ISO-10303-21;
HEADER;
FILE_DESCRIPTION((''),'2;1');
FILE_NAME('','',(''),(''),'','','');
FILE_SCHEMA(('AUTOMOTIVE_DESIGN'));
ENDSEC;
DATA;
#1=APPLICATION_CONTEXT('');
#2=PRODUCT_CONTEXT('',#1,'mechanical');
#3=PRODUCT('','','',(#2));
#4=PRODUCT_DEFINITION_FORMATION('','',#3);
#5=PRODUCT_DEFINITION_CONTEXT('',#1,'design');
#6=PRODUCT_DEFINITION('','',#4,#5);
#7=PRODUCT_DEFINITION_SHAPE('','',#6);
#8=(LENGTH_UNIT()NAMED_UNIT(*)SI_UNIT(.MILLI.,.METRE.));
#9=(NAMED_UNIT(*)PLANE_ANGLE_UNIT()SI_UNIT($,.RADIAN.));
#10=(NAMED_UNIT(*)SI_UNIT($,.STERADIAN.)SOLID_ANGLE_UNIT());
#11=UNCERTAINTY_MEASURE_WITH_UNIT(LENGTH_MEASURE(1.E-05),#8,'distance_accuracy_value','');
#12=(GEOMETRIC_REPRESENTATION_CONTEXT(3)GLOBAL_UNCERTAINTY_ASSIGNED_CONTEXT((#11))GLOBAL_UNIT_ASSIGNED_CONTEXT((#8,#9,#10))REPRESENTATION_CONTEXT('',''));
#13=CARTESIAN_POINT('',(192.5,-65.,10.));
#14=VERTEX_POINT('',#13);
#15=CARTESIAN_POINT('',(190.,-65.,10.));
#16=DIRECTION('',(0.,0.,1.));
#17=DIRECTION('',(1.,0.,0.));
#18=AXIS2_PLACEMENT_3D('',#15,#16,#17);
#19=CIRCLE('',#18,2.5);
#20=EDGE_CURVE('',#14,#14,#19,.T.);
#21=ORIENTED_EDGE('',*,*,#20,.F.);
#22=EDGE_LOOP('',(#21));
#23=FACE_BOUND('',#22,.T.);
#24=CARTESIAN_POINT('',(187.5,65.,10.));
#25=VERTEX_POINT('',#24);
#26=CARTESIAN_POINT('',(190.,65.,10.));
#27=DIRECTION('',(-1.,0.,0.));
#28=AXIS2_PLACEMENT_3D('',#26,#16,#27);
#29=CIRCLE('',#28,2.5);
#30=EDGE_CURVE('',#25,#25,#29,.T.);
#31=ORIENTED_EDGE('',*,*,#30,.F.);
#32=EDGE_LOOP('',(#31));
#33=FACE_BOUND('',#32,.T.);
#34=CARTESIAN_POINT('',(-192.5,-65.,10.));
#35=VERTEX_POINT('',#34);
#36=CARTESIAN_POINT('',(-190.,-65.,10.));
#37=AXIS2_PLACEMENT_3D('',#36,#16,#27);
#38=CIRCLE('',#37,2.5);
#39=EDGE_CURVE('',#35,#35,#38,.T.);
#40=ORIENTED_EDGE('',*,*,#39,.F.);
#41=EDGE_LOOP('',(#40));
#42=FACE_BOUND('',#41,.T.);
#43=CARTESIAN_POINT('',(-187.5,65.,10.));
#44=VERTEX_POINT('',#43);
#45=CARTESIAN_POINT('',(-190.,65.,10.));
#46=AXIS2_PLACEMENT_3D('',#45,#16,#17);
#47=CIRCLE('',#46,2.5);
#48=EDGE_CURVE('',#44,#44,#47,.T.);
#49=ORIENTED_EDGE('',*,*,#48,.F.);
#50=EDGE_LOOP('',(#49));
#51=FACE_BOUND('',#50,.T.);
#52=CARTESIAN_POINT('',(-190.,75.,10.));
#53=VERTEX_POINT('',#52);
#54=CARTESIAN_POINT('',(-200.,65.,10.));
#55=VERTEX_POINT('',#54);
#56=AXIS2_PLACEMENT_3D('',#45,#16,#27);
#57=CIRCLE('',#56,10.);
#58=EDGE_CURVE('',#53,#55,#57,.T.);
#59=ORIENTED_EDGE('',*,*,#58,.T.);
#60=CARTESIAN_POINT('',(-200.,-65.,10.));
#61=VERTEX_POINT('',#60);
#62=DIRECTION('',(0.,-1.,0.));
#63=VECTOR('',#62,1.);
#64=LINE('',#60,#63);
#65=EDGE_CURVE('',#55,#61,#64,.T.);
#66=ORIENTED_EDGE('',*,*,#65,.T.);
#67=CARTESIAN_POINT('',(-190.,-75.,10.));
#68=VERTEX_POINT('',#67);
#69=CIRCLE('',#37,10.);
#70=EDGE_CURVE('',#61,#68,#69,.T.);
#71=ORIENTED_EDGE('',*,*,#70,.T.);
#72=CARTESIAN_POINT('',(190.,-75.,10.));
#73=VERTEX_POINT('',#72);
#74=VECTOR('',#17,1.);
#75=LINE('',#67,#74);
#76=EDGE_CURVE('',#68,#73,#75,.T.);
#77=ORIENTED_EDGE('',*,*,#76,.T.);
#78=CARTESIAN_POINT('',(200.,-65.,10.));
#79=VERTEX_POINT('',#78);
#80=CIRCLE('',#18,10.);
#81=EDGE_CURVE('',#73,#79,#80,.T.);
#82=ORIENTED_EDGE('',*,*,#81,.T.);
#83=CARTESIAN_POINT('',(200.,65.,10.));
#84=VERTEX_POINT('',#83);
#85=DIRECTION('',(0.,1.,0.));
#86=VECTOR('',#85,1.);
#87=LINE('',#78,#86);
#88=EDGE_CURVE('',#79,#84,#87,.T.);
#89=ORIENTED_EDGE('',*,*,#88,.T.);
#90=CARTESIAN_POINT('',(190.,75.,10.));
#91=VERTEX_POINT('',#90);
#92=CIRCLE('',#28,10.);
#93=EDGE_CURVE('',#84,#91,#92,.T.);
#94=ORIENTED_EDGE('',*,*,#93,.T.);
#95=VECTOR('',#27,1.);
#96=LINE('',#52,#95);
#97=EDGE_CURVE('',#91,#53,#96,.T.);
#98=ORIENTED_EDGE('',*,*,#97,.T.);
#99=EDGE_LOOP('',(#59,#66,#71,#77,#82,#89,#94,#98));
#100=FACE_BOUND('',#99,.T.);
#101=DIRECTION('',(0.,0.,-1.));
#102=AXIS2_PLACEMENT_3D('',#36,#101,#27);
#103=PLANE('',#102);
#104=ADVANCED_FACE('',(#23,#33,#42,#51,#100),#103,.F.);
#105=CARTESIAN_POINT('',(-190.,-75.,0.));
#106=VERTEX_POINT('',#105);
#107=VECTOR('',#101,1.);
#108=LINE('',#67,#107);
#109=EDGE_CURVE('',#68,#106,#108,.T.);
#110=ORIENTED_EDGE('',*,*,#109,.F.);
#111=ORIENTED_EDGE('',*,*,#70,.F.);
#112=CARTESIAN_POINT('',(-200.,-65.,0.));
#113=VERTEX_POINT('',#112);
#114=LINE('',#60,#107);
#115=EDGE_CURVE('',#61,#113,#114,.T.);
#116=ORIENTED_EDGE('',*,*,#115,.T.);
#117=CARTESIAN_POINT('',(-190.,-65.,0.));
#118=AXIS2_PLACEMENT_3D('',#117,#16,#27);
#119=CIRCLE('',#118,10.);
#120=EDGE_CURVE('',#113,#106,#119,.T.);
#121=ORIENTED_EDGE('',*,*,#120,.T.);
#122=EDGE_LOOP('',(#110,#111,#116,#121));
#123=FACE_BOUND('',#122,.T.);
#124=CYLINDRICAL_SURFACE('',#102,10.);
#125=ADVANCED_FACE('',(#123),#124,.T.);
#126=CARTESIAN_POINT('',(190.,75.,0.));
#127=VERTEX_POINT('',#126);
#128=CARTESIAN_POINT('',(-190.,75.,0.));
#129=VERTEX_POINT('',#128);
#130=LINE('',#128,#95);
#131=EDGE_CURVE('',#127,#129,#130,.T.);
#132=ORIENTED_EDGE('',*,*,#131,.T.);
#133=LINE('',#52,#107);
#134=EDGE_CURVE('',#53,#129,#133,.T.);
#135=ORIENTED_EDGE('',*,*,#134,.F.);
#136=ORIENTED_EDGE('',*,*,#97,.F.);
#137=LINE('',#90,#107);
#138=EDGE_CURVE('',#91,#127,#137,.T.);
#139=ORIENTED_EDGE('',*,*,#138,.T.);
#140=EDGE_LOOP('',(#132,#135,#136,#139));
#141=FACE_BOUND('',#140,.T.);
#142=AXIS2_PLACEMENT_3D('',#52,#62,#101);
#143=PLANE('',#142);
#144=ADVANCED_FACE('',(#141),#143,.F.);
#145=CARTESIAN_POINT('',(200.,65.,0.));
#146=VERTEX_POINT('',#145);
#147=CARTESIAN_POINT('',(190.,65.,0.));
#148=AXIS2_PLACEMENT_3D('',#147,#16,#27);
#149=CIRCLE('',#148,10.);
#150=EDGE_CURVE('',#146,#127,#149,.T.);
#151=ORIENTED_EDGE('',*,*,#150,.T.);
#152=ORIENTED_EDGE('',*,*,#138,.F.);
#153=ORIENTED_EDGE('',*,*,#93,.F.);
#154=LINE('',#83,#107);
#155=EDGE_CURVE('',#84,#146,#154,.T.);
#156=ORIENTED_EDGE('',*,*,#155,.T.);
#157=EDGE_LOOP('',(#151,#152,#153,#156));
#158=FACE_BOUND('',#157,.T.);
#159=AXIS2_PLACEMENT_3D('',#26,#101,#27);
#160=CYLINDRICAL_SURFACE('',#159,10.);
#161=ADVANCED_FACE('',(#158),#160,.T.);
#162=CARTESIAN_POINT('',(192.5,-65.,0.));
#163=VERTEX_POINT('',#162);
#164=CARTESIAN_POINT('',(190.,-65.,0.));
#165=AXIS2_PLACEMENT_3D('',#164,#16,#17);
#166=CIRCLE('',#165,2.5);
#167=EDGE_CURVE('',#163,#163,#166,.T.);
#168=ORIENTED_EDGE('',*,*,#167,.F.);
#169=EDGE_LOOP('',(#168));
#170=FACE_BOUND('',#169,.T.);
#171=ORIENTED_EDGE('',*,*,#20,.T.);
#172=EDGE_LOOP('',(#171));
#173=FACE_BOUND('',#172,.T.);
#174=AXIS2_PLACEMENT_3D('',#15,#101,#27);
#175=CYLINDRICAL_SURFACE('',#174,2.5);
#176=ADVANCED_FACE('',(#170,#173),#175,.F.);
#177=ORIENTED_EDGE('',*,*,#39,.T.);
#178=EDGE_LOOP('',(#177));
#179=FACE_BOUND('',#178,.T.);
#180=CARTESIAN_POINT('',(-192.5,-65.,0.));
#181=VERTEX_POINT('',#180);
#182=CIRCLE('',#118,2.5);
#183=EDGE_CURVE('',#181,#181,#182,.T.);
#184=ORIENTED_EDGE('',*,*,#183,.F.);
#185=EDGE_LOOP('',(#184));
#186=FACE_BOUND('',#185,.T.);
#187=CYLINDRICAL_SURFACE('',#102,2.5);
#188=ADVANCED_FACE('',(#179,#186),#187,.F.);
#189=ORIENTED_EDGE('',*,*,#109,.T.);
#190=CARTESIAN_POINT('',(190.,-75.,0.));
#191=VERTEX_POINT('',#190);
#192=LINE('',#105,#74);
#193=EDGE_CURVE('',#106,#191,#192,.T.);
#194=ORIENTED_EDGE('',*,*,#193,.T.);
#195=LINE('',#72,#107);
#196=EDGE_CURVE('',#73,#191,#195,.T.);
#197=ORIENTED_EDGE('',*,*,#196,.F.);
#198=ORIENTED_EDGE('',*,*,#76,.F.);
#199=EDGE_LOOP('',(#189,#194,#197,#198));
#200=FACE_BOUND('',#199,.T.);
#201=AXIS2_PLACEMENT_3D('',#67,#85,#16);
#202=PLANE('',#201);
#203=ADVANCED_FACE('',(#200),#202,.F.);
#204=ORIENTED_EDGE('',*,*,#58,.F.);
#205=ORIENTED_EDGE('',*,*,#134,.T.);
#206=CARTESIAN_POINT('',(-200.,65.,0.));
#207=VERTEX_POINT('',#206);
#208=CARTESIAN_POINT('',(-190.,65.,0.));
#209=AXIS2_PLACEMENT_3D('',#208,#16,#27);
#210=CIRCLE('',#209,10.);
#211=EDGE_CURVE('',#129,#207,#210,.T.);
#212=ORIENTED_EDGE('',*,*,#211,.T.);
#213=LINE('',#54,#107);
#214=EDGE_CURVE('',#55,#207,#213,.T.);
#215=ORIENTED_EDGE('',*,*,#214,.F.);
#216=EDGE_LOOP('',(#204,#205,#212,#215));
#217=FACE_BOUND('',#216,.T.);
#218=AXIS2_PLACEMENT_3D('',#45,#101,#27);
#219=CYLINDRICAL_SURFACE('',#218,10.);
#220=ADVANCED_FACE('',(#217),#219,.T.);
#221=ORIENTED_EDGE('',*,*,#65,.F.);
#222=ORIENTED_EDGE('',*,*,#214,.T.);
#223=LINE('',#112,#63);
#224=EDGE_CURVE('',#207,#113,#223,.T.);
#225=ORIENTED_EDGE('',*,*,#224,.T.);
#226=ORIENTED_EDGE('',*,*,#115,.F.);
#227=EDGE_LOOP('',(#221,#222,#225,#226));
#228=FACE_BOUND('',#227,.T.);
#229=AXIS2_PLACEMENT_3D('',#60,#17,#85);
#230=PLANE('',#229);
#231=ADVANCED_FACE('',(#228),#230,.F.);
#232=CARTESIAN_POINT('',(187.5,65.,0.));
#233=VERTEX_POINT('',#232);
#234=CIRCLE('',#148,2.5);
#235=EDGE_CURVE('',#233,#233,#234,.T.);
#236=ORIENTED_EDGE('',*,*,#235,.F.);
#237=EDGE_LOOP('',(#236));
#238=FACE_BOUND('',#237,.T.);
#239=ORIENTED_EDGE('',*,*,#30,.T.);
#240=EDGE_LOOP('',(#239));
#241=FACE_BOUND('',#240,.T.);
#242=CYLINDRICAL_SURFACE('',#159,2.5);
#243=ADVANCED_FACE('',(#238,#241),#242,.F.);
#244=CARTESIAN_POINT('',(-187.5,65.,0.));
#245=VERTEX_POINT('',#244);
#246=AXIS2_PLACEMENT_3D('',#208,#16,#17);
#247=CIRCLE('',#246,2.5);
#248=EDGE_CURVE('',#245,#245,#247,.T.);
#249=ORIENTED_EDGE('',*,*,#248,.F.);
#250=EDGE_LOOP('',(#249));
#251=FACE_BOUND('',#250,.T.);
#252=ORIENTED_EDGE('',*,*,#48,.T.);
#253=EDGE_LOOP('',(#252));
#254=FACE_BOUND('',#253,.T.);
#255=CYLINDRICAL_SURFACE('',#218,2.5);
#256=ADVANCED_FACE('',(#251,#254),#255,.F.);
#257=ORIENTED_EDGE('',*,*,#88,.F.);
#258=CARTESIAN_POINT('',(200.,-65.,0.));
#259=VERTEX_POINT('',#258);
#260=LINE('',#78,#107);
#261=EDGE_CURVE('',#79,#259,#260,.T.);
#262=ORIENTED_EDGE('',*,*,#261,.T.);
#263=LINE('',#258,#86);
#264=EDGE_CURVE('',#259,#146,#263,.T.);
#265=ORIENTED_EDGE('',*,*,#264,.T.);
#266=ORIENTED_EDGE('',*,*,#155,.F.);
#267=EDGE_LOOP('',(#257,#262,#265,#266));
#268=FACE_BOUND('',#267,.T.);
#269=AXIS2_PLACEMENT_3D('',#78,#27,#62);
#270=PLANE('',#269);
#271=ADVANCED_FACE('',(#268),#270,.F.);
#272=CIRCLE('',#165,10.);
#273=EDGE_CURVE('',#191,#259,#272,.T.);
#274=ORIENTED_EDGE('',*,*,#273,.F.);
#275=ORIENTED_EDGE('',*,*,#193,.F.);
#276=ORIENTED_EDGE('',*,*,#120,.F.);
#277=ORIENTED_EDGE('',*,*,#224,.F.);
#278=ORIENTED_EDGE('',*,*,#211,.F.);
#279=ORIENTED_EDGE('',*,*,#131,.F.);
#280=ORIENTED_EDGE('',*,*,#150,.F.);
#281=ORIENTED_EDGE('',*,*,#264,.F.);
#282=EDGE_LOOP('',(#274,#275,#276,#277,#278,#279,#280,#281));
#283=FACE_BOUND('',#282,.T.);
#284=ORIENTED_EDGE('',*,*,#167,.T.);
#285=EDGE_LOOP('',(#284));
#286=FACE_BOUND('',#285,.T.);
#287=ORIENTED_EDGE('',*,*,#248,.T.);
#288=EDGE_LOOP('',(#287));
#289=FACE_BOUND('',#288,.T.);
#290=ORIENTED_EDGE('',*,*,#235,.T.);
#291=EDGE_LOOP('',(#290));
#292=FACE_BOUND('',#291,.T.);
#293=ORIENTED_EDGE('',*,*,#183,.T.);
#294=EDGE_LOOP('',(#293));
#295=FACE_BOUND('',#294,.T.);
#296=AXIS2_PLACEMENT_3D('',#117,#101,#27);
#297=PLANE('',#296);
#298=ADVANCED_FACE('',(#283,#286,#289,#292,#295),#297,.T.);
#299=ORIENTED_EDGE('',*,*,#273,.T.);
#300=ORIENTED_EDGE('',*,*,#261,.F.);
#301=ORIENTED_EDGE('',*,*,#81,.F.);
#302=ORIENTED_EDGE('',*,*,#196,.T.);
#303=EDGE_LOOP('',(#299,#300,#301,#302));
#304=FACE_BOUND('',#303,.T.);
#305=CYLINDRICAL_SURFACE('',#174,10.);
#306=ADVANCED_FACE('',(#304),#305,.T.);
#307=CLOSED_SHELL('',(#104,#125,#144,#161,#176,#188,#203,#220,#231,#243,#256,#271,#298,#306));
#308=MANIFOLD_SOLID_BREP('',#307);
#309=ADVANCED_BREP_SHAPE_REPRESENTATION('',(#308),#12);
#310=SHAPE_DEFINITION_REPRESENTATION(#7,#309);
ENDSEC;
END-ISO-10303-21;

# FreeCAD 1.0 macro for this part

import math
import FreeCAD as App
import Part
import Sketcher

V = App.Vector

doc = App.newDocument("Part")
body = doc.addObject("PartDesign::Body", "Body")

# Sketch on XY plane
sketch1 = body.newObject("Sketcher::SketchObject", "Sketch")
sketch1.AttachmentSupport = (doc.getObject("XY_Plane"), [""])
sketch1.MapMode = "FlatFace"
sketch1.addGeometry([
    Part.LineSegment(V(-190, -75, 0), V(190, -75, 0)),  # 0
    Part.ArcOfCircle(Part.Circle(V(190, -65, 0), V(0, 0, 1), 10), math.radians(-90), math.radians(0)),  # 1
    Part.LineSegment(V(200, -65, 0), V(200, 65, 0)),  # 2
    Part.ArcOfCircle(Part.Circle(V(190, 65, 0), V(0, 0, 1), 10), math.radians(0), math.radians(90)),  # 3
    Part.LineSegment(V(190, 75, 0), V(-190, 75, 0)),  # 4
    Part.ArcOfCircle(Part.Circle(V(-190, 65, 0), V(0, 0, 1), 10), math.radians(90), math.radians(180)),  # 5
    Part.LineSegment(V(-200, 65, 0), V(-200, -65, 0)),  # 6
    Part.ArcOfCircle(Part.Circle(V(-190, -65, 0), V(0, 0, 1), 10), math.radians(180), math.radians(270)),  # 7
    Part.Circle(V(-190, -65, 0), V(0, 0, 1), 2.5),  # 8
    Part.Circle(V(190, -65, 0), V(0, 0, 1), 2.5),  # 9
    Part.Circle(V(-190, 65, 0), V(0, 0, 1), 2.5),  # 10
    Part.Circle(V(190, 65, 0), V(0, 0, 1), 2.5),  # 11
], False)
sketch1.addConstraint([
    Sketcher.Constraint("Tangent", 0, 2, 1, 1),
    Sketcher.Constraint("Tangent", 1, 2, 2, 1),
    Sketcher.Constraint("Tangent", 2, 2, 3, 1),
    Sketcher.Constraint("Tangent", 3, 2, 4, 1),
    Sketcher.Constraint("Tangent", 4, 2, 5, 1),
    Sketcher.Constraint("Tangent", 5, 2, 6, 1),
    Sketcher.Constraint("Tangent", 6, 2, 7, 1),
    Sketcher.Constraint("Tangent", 7, 2, 0, 1),
    Sketcher.Constraint("Horizontal", 0),
    Sketcher.Constraint("Vertical", 2),
    Sketcher.Constraint("Horizontal", 4),
    Sketcher.Constraint("Vertical", 6),
    Sketcher.Constraint("Coincident", 8, 3, 7, 3),
    Sketcher.Constraint("Coincident", 9, 3, 1, 3),
    Sketcher.Constraint("Coincident", 10, 3, 5, 3),
    Sketcher.Constraint("Coincident", 11, 3, 3, 3),
    Sketcher.Constraint("Equal", 1, 3),
    Sketcher.Constraint("Equal", 3, 5),
    Sketcher.Constraint("Equal", 5, 7),
    Sketcher.Constraint("Equal", 8, 9),
    Sketcher.Constraint("Equal", 9, 10),
    Sketcher.Constraint("Equal", 10, 11),
    Sketcher.Constraint("Symmetric", 1, 3, 5, 3, -1, 1),
    Sketcher.Constraint("Diameter", 8, 5.0),
    Sketcher.Constraint("Radius", 1, 10.0),
    Sketcher.Constraint("DistanceX", 0, 1, 0, 2, 380.0),
    Sketcher.Constraint("DistanceY", 2, 1, 2, 2, 130.0),
])
pad1 = body.newObject("PartDesign::Pad", "Pad")
pad1.Profile = sketch1
pad1.Length = 10

doc.recompute()
